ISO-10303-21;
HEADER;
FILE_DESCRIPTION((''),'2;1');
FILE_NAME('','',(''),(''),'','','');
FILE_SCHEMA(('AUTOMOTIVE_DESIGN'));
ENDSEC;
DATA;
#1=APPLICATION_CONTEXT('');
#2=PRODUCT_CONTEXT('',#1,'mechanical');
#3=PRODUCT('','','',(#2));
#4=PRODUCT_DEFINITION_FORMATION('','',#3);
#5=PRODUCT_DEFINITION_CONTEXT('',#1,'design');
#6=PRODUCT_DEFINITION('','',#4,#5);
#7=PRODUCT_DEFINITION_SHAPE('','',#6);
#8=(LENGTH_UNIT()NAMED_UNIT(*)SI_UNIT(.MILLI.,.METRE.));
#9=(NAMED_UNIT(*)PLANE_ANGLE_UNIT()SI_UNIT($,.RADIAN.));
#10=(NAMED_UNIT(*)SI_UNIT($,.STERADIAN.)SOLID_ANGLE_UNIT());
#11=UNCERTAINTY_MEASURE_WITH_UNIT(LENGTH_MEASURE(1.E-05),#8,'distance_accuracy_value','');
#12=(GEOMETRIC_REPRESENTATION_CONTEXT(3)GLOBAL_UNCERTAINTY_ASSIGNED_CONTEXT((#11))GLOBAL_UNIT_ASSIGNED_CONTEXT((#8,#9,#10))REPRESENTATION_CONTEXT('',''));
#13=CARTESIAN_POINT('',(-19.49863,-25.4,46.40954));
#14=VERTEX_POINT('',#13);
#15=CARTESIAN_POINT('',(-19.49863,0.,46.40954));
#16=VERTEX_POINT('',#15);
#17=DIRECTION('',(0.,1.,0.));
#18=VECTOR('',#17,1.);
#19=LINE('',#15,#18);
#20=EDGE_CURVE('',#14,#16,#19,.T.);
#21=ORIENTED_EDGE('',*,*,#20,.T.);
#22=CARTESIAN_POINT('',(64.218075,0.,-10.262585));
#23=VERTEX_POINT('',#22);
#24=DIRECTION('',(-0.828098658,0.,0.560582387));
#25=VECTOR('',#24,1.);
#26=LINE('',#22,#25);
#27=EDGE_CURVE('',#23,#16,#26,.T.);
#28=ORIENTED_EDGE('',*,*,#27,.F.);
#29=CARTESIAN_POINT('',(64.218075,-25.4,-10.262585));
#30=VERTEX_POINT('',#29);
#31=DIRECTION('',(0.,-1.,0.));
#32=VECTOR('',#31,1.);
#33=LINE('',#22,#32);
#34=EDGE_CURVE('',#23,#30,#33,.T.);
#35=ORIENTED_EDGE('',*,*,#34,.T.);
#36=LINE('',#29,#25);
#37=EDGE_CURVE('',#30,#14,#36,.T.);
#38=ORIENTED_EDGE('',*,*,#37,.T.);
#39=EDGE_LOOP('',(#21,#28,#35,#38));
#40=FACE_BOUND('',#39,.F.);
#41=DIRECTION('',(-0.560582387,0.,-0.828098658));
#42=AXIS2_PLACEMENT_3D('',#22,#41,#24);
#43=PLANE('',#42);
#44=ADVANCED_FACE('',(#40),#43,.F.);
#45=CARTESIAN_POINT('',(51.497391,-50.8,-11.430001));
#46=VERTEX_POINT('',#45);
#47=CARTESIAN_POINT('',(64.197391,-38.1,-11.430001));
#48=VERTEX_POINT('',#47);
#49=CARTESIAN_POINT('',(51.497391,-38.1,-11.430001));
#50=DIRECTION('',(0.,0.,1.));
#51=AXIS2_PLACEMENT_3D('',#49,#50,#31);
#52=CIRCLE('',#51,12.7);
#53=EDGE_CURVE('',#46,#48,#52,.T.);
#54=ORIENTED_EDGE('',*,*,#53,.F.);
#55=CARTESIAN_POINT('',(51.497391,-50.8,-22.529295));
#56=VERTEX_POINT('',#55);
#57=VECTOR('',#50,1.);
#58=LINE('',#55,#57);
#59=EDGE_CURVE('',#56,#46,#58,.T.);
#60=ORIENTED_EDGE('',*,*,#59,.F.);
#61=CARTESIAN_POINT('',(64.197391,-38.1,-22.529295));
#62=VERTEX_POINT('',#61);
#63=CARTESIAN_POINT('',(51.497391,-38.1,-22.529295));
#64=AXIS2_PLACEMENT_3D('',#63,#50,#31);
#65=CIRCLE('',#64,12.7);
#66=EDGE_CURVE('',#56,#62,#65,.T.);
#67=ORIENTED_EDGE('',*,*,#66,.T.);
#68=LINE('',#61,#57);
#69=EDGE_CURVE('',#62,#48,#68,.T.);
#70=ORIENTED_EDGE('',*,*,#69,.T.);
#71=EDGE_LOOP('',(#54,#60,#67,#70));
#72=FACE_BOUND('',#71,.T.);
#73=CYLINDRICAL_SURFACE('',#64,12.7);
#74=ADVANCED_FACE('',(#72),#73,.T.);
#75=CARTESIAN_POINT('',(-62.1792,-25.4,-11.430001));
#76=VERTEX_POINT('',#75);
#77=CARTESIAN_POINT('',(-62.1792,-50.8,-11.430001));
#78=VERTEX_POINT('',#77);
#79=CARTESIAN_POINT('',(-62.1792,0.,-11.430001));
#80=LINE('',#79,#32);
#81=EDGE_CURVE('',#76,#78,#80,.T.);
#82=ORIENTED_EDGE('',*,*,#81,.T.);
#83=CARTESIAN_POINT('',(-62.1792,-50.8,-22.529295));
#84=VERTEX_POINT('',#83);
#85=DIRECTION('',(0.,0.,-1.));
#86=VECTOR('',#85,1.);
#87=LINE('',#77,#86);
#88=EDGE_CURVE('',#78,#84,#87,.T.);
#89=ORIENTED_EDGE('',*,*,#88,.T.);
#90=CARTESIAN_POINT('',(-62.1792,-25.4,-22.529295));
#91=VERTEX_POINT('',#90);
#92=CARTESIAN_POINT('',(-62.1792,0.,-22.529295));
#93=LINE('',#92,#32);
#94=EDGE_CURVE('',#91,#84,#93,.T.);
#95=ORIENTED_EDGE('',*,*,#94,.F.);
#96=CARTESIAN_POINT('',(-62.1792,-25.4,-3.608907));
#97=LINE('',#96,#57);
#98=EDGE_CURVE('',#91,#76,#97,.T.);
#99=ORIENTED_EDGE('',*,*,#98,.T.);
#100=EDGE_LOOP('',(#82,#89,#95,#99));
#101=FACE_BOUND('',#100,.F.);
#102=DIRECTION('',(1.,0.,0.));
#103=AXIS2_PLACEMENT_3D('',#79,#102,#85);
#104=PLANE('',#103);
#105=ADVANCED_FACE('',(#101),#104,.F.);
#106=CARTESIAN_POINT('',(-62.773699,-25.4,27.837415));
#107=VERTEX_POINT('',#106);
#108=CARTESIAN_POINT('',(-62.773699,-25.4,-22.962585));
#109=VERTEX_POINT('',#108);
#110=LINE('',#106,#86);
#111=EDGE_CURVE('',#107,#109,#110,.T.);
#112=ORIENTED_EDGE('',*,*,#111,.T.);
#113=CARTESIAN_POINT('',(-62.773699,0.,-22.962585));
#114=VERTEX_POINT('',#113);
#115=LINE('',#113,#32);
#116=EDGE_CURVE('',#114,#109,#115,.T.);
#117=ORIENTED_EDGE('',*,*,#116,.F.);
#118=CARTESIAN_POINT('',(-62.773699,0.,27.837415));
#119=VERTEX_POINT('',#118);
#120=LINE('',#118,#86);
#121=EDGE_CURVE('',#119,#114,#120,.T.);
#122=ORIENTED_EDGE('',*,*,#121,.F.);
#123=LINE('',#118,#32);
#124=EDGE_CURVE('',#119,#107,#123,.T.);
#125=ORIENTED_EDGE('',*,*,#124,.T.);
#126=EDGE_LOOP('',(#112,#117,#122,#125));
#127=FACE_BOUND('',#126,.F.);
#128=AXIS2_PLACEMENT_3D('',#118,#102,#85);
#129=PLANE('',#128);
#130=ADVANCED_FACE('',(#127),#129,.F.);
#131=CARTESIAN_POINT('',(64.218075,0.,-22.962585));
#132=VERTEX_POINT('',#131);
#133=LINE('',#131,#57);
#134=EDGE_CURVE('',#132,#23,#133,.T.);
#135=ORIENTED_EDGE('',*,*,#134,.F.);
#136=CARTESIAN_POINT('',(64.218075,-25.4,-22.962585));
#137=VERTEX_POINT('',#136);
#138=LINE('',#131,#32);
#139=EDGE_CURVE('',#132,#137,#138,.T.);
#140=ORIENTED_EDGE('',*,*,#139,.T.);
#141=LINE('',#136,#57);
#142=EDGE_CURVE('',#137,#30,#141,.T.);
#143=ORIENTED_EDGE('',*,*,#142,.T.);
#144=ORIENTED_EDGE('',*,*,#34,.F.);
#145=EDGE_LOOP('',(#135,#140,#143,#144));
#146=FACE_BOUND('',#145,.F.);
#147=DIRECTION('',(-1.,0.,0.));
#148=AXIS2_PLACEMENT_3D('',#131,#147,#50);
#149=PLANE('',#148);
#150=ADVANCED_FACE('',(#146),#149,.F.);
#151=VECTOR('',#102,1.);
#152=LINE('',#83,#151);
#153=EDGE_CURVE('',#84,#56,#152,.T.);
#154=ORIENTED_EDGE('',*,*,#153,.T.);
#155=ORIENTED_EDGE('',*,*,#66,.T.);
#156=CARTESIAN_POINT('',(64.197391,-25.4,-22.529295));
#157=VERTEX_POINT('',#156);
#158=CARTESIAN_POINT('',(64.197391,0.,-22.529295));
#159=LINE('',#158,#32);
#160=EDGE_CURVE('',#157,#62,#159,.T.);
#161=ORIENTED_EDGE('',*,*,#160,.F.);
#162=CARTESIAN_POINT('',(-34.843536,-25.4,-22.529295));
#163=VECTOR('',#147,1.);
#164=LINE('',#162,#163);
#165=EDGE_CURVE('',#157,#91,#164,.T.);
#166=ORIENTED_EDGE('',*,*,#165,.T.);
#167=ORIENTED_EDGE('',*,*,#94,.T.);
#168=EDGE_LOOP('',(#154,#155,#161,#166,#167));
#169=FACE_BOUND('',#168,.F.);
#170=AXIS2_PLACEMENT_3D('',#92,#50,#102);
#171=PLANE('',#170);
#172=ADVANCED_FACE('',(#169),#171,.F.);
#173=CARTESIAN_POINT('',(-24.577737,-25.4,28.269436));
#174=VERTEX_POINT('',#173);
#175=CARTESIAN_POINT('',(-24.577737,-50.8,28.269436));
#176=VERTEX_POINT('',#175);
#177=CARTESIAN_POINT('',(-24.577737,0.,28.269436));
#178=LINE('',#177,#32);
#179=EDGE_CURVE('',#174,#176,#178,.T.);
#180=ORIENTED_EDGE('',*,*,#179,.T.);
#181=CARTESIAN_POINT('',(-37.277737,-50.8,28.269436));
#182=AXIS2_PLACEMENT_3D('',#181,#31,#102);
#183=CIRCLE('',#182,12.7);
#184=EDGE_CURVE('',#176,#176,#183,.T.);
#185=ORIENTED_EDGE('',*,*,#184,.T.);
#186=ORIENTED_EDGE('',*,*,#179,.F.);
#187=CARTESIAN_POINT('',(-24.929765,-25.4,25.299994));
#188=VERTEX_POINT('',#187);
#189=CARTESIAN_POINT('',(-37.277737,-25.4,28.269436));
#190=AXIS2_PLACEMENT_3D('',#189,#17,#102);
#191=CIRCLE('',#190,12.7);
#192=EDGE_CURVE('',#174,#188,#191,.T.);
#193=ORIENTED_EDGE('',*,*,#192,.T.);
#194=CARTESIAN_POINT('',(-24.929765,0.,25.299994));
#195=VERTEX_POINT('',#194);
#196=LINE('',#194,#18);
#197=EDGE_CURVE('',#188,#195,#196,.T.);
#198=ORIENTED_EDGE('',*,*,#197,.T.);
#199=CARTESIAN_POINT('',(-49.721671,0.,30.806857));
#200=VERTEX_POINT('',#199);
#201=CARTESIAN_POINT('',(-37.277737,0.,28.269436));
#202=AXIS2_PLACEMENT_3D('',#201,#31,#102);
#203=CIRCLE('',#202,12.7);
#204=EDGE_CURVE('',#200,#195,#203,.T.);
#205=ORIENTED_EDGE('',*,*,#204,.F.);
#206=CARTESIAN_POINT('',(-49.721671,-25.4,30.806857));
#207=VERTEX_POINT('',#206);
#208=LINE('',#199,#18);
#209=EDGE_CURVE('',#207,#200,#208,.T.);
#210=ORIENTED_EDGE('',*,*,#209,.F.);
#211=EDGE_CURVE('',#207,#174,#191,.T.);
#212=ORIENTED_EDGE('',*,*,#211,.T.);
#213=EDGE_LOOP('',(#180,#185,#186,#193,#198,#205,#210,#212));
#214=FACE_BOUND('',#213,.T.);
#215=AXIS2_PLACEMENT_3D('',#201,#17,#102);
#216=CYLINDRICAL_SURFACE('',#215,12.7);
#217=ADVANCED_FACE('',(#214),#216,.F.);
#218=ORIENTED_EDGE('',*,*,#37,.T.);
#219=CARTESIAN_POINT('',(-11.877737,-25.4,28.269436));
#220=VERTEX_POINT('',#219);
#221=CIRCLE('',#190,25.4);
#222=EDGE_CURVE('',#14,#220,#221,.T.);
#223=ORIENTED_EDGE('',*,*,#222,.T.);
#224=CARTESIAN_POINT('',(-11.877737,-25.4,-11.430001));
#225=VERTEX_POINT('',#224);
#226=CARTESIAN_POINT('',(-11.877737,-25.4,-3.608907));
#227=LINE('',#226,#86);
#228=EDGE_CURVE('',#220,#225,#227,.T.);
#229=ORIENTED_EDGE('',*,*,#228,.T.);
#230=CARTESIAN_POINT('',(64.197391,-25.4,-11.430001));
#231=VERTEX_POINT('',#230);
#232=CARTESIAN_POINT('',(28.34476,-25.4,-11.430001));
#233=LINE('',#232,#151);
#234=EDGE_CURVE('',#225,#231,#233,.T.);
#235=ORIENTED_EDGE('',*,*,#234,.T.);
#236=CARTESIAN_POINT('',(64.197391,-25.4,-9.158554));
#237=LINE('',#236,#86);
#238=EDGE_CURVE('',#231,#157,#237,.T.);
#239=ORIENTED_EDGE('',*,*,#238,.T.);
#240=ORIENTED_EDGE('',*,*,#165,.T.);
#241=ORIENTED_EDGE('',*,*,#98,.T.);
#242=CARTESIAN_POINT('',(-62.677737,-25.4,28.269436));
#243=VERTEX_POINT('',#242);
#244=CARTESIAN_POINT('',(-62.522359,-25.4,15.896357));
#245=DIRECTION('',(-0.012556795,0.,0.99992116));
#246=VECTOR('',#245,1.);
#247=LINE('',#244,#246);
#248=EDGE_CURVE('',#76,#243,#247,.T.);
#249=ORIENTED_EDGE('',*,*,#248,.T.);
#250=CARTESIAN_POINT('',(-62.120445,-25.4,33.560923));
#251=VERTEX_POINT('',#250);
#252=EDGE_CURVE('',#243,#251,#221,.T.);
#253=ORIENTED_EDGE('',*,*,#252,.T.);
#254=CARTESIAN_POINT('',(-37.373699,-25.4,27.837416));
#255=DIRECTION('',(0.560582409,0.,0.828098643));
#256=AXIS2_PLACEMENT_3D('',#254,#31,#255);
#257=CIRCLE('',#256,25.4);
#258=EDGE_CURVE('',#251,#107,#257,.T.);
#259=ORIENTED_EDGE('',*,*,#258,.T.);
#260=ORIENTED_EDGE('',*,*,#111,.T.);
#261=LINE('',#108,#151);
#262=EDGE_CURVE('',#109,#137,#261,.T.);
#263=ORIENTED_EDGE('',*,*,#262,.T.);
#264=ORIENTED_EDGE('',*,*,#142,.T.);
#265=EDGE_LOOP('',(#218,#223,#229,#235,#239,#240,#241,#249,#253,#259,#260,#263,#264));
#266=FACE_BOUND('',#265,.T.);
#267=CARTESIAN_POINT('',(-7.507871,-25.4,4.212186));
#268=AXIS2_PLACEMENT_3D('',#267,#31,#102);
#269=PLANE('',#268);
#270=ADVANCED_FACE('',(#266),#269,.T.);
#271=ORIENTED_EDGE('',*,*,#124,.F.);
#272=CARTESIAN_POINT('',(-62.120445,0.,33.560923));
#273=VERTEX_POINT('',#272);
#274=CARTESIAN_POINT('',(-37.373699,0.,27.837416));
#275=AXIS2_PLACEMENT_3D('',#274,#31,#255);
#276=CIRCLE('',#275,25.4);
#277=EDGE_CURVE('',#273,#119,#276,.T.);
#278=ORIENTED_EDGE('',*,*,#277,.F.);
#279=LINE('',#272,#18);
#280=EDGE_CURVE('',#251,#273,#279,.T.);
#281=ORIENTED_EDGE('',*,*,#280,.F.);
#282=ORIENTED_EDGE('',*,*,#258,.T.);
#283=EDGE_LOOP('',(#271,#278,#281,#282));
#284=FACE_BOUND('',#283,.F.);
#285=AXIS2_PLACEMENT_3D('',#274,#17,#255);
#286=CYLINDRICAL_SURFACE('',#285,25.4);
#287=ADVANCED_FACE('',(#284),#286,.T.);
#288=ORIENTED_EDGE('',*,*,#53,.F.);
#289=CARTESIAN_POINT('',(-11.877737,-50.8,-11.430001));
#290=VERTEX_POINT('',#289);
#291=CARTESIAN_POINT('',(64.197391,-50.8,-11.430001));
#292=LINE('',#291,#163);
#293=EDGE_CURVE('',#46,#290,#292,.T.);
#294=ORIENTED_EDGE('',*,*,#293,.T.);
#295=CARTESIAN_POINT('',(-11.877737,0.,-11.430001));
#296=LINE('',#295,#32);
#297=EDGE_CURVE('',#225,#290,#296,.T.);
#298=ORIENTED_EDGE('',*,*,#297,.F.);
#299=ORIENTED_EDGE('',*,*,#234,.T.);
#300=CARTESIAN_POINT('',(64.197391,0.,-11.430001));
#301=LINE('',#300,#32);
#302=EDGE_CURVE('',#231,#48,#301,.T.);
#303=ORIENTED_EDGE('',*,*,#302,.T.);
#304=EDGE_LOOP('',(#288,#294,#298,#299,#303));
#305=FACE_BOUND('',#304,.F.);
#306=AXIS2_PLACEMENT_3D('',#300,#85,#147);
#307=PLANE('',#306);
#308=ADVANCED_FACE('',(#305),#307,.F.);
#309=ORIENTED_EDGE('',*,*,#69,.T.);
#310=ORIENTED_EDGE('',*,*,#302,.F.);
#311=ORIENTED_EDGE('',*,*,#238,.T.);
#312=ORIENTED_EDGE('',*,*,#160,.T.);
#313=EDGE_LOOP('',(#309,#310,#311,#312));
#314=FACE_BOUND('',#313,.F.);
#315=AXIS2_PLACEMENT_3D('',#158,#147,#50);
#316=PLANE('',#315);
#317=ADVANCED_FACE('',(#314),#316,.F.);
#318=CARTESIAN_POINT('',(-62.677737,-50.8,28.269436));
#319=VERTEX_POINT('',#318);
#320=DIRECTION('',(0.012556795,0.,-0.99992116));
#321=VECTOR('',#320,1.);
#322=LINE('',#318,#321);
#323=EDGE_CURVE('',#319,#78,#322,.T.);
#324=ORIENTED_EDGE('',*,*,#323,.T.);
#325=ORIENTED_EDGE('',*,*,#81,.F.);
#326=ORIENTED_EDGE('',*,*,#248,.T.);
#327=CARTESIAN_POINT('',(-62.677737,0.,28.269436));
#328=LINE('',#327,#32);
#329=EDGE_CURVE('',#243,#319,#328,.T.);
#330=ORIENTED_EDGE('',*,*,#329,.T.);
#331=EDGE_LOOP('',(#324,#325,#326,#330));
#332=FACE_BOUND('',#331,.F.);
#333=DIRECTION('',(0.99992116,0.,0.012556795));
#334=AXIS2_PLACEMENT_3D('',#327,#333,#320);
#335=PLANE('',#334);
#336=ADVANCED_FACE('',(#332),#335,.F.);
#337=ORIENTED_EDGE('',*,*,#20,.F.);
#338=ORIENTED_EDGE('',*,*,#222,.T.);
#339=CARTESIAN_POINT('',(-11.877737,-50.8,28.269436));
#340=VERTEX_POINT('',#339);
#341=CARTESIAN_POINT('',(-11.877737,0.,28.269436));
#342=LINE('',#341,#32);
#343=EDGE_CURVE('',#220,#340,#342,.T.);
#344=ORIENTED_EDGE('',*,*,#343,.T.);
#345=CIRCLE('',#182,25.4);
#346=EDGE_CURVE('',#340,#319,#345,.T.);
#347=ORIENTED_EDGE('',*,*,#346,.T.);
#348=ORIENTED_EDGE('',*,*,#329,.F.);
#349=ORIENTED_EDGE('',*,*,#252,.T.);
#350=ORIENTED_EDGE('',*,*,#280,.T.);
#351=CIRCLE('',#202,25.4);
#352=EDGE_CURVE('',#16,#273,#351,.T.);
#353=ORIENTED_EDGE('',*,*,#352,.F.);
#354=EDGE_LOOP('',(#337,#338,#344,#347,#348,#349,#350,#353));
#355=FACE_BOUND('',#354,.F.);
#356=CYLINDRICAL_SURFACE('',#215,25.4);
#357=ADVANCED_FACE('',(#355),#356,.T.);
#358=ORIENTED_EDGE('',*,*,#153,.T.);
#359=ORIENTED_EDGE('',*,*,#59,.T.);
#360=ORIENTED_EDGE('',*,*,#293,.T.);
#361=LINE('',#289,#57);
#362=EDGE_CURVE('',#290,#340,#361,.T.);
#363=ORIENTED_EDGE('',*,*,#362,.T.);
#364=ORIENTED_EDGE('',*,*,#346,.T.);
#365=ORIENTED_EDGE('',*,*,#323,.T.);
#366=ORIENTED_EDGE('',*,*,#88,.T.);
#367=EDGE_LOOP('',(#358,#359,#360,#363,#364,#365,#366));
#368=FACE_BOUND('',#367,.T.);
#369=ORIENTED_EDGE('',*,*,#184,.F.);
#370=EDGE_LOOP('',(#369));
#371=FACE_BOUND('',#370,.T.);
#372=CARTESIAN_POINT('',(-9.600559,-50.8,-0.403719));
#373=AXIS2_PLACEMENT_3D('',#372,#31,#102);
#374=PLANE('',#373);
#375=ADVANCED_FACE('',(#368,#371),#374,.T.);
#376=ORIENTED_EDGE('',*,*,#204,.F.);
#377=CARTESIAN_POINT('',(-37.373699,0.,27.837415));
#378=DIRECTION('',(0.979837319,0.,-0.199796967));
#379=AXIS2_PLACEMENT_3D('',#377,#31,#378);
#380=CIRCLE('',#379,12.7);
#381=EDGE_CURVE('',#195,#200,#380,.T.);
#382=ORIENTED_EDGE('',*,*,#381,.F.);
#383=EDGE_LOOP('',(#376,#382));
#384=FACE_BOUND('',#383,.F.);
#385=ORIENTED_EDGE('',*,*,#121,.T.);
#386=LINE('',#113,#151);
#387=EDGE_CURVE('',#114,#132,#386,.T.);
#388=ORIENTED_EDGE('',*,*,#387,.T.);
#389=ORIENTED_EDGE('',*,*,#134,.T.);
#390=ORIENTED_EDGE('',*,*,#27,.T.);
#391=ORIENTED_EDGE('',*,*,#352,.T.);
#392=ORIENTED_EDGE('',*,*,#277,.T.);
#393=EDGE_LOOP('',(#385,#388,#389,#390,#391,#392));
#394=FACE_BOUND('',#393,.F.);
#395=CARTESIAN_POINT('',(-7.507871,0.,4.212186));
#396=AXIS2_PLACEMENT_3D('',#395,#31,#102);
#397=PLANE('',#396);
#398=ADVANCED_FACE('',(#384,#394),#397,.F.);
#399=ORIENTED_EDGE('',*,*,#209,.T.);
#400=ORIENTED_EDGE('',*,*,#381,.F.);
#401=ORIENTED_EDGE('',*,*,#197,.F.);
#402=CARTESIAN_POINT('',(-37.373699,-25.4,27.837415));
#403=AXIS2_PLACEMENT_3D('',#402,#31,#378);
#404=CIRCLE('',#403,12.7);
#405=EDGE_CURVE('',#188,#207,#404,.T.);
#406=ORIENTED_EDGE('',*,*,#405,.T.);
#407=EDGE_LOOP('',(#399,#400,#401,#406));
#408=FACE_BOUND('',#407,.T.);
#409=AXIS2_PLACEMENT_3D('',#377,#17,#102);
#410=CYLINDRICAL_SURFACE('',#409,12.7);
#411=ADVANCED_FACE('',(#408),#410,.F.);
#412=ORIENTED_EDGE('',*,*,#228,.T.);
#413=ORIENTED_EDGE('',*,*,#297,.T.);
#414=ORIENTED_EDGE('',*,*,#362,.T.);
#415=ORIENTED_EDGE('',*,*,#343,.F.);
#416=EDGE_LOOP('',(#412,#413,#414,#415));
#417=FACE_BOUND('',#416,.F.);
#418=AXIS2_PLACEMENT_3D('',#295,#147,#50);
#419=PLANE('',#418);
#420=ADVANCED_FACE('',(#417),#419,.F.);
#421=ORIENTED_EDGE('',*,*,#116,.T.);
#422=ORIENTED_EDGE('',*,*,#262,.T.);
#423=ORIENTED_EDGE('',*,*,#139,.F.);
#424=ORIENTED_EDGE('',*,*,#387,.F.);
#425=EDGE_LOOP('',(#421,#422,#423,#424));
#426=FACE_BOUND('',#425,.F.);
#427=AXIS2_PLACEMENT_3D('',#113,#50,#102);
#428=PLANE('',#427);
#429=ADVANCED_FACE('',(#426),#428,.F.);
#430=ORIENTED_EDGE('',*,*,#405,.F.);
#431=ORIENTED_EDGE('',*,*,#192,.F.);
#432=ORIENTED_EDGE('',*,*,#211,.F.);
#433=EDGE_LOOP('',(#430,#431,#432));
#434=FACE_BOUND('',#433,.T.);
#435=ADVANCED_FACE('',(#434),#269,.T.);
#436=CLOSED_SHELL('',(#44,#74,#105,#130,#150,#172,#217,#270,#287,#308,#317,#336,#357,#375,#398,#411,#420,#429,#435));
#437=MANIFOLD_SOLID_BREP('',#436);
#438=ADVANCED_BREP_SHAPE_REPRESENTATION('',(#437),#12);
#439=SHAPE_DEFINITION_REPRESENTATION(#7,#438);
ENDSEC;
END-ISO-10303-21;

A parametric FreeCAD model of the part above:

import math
import FreeCAD as App
import Part
import Sketcher

V = App.Vector
Q = App.Units.Quantity


def edges_at(feature, points):
    """Names of the edges that pass closest to the given points."""
    edges = feature.Shape.Edges
    near = lambda p: min(range(len(edges)), key=lambda i: edges[i].distToShape(Part.Vertex(*p))[0])
    return sorted({f"Edge{near(p) + 1}" for p in points})

doc = App.newDocument("Part")
body = doc.addObject("PartDesign::Body", "Body")

# Sketch on XZ plane
sketch1 = body.newObject("Sketcher::SketchObject", "Sketch")
sketch1.AttachmentSupport = (doc.getObject("XZ_Plane"), [""])
sketch1.MapMode = "FlatFace"
sketch1.addGeometry([
    Part.LineSegment(V(64.218075, -10.262585, 0), V(-23.134906, 48.871121, 0)),  # 0
    Part.ArcOfCircle(Part.Circle(V(-37.373699, 27.837416, 0), V(0, 0, 1), 25.4), math.radians(55.903915), math.radians(180.000001)),  # 1
    Part.LineSegment(V(-62.773699, 27.837415, 0), V(-62.773699, -22.962585, 0)),  # 2
    Part.LineSegment(V(-62.773699, -22.962585, 0), V(64.218075, -22.962585, 0)),  # 3
    Part.LineSegment(V(64.218075, -22.962585, 0), V(64.218075, -10.262585, 0)),  # 4
    Part.Circle(V(-37.373699, 27.837415, 0), V(0, 0, 1), 12.7),  # 5
], False)
sketch1.addConstraint([
    Sketcher.Constraint("Tangent", 0, 2, 1, 1),
    Sketcher.Constraint("Tangent", 1, 2, 2, 1),
    Sketcher.Constraint("Coincident", 2, 2, 3, 1),
    Sketcher.Constraint("Coincident", 3, 2, 4, 1),
    Sketcher.Constraint("Coincident", 4, 2, 0, 1),
    Sketcher.Constraint("Vertical", 2),
    Sketcher.Constraint("Horizontal", 3),
    Sketcher.Constraint("Vertical", 4),
    Sketcher.Constraint("Coincident", 5, 3, 1, 3),
    Sketcher.Constraint("Diameter", 5, Q("1 in")),
    Sketcher.Constraint("Radius", 1, Q("1 in")),
    Sketcher.Constraint("DistanceY", 2, 2, 2, 1, Q("2 in")),
    Sketcher.Constraint("DistanceY", 4, 1, 4, 2, Q("0.5 in")),
    Sketcher.Constraint("Distance", 0, Q("4.153 in")),
    Sketcher.Constraint("DistanceX", 1, 3, -1, 1, 37.373699),
    Sketcher.Constraint("DistanceY", -1, 1, 0, 2, 48.871121),
])
pad1 = body.newObject("PartDesign::Pad", "Pad")
pad1.Profile = sketch1
pad1.Length = Q("1 in")

# Sketch on XZ plane
sketch2 = body.newObject("Sketcher::SketchObject", "Sketch001")
sketch2.AttachmentSupport = (doc.getObject("XZ_Plane"), [""])
sketch2.MapMode = "FlatFace"
sketch2.addGeometry([
    Part.LineSegment(V(-11.877737, -11.430001, 0), V(-11.877737, 28.269436, 0)),  # 0
    Part.ArcOfCircle(Part.Circle(V(-37.277737, 28.269436, 0), V(0, 0, 1), 25.4), math.radians(0), math.radians(180)),  # 1
    Part.LineSegment(V(-62.677737, 28.269436, 0), V(-62.1792, -11.430001, 0)),  # 2
    Part.LineSegment(V(-62.1792, -11.430001, 0), V(-62.1792, -22.529295, 0)),  # 3
    Part.LineSegment(V(-62.1792, -22.529295, 0), V(64.197391, -22.529295, 0)),  # 4
    Part.LineSegment(V(64.197391, -22.529295, 0), V(64.197391, -11.430001, 0)),  # 5
    Part.LineSegment(V(64.197391, -11.430001, 0), V(-11.877737, -11.430001, 0)),  # 6
    Part.Circle(V(-37.277737, 28.269436, 0), V(0, 0, 1), 12.7),  # 7
], False)
sketch2.addConstraint([
    Sketcher.Constraint("Tangent", 0, 2, 1, 1),
    Sketcher.Constraint("Coincident", 1, 2, 2, 1),
    Sketcher.Constraint("Coincident", 2, 2, 3, 1),
    Sketcher.Constraint("Coincident", 3, 2, 4, 1),
    Sketcher.Constraint("Coincident", 4, 2, 5, 1),
    Sketcher.Constraint("Coincident", 5, 2, 6, 1),
    Sketcher.Constraint("Coincident", 6, 2, 0, 1),
    Sketcher.Constraint("Vertical", 0),
    Sketcher.Constraint("Vertical", 3),
    Sketcher.Constraint("Horizontal", 4),
    Sketcher.Constraint("Vertical", 5),
    Sketcher.Constraint("Horizontal", 6),
    Sketcher.Constraint("Coincident", 7, 3, 1, 3),
    Sketcher.Constraint("Horizontal", 0, 2, 1, 2),
    Sketcher.Constraint("Horizontal", 2, 2, 5, 2),
    Sketcher.Constraint("Diameter", 7, Q("1 in")),
    Sketcher.Constraint("Radius", 1, Q("1 in")),
    Sketcher.Constraint("DistanceY", 2, 2, -1, 1, Q("0.45 in")),
    Sketcher.Constraint("DistanceX", 2, 2, -1, 1, Q("2.448 in")),
    Sketcher.Constraint("DistanceX", 4, 1, 4, 2, 126.376591),
    Sketcher.Constraint("DistanceX", 6, 2, 6, 1, 76.075128),
    Sketcher.Constraint("DistanceY", 0, 1, 0, 2, 39.699437),
    Sketcher.Constraint("DistanceY", 3, 2, 3, 1, 11.099294),
])
pad2 = body.newObject("PartDesign::Pad", "Pad001")
pad2.Profile = sketch2
pad2.Length = Q("2 in")
doc.recompute()

fillet = body.newObject("PartDesign::Fillet", "Fillet")
fillet.Base = (pad2, edges_at(pad2, [(64.197, -50.8, -16.98)]))
fillet.Radius = Q("0.5 in")

doc.recompute()
